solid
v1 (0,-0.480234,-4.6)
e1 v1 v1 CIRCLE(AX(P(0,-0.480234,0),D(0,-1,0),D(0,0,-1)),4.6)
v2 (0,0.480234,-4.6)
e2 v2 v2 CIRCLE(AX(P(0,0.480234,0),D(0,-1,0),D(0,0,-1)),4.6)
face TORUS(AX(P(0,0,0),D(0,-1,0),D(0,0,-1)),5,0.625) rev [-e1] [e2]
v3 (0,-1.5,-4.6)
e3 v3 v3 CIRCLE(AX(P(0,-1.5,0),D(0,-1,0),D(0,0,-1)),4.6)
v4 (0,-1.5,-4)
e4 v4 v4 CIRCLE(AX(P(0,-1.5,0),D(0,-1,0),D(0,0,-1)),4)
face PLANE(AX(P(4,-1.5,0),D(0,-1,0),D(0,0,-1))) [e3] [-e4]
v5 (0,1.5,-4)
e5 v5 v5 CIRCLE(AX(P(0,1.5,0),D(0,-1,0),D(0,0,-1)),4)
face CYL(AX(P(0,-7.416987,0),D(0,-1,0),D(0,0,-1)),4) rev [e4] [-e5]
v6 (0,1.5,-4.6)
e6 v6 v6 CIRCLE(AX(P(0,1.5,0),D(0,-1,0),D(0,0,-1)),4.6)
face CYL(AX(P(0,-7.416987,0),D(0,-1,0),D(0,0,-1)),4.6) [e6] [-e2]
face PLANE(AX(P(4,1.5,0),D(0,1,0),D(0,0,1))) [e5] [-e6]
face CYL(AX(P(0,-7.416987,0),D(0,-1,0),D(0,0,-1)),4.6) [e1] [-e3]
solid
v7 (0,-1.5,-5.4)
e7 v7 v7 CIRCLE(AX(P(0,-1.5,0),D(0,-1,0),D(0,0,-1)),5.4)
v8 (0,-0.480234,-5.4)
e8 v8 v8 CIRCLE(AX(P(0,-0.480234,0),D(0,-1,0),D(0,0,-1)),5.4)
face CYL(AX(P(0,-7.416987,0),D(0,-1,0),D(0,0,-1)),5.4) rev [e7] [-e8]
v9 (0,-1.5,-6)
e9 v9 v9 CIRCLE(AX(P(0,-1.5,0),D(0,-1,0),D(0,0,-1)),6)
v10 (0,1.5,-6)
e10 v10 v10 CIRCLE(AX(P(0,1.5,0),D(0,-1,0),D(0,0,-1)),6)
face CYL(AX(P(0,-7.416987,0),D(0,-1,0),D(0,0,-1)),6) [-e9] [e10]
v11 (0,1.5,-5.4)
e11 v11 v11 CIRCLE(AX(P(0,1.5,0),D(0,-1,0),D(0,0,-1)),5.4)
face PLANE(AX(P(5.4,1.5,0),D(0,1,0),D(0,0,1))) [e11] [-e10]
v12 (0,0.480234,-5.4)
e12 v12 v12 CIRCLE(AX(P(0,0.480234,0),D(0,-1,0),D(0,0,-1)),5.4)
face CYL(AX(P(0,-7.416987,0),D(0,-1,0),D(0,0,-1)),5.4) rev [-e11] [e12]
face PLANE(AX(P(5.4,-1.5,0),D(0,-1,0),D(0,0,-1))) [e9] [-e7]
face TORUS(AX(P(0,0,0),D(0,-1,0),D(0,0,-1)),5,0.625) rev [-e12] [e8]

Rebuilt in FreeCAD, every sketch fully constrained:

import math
import FreeCAD as App
import Part
import Sketcher

V = App.Vector

doc = App.newDocument("Part")
params = doc.addObject("Spreadsheet::Sheet", "Params")
for row, (alias, value) in enumerate([
    ("sketch1_height", "3 mm"),
    ("sketch1_width", "0.6 mm"),
    ("revolution_angle", "360 deg"),
], start=1):
    params.set(f"A{row}", alias)
    params.set(f"B{row}", "=" + value)
    params.setAlias(f"B{row}", alias)

body = doc.addObject("PartDesign::Body", "Body")
body.AllowCompound = True

# Sketch on XY plane
sketch1 = body.newObject("Sketcher::SketchObject", "Sketch")
sketch1.AttachmentSupport = (doc.getObject("XY_Plane"), [""])
sketch1.MapMode = "FlatFace"
sketch1.addGeometry(Part.LineSegment(V(4.6, 1.5, 0), V(4, 1.5, 0)), False)
sketch1.addGeometry(Part.LineSegment(V(4, 1.5, 0), V(4, -1.5, 0)), False)
sketch1.addGeometry(Part.LineSegment(V(4, -1.5, 0), V(4.6, -1.5, 0)), False)
sketch1.addGeometry(Part.LineSegment(V(4.6, -1.5, 0), V(4.6, -0.5, 0)), False)
sketch1.addGeometry(Part.ArcOfCircle(Part.Circle(V(5, 0, 0), V(0, 0, 1), 0.6), math.radians(130), math.radians(230)), False)
sketch1.addGeometry(Part.LineSegment(V(4.6, 0.5, 0), V(4.6, 1.5, 0)), False)
sketch1.addGeometry(Part.LineSegment(V(6, -1.5, 0), V(6, 1.5, 0)), False)
sketch1.addGeometry(Part.LineSegment(V(6, 1.5, 0), V(5.4, 1.5, 0)), False)
sketch1.addGeometry(Part.LineSegment(V(5.4, 1.5, 0), V(5.4, 0.5, 0)), False)
sketch1.addGeometry(Part.ArcOfCircle(Part.Circle(V(5, 0, 0), V(0, 0, 1), 0.6), math.radians(-50), math.radians(50)), False)
sketch1.addGeometry(Part.LineSegment(V(5.4, -0.5, 0), V(5.4, -1.5, 0)), False)
sketch1.addGeometry(Part.LineSegment(V(5.4, -1.5, 0), V(6, -1.5, 0)), False)
sketch1.addConstraint(Sketcher.Constraint("Coincident", 0, 2, 1, 1))
sketch1.addConstraint(Sketcher.Constraint("Coincident", 1, 2, 2, 1))
sketch1.addConstraint(Sketcher.Constraint("Coincident", 2, 2, 3, 1))
sketch1.addConstraint(Sketcher.Constraint("Coincident", 3, 2, 4, 2))
sketch1.addConstraint(Sketcher.Constraint("Coincident", 4, 1, 5, 1))
sketch1.addConstraint(Sketcher.Constraint("Coincident", 5, 2, 0, 1))
sketch1.addConstraint(Sketcher.Constraint("Coincident", 6, 2, 7, 1))
sketch1.addConstraint(Sketcher.Constraint("Coincident", 7, 2, 8, 1))
sketch1.addConstraint(Sketcher.Constraint("Coincident", 8, 2, 9, 2))
sketch1.addConstraint(Sketcher.Constraint("Coincident", 9, 1, 10, 1))
sketch1.addConstraint(Sketcher.Constraint("Coincident", 10, 2, 11, 1))
sketch1.addConstraint(Sketcher.Constraint("Coincident", 11, 2, 6, 1))
sketch1.addConstraint(Sketcher.Constraint("Horizontal", 0))
sketch1.addConstraint(Sketcher.Constraint("Vertical", 1))
sketch1.addConstraint(Sketcher.Constraint("Horizontal", 2))
sketch1.addConstraint(Sketcher.Constraint("Vertical", 3))
sketch1.addConstraint(Sketcher.Constraint("Vertical", 5))
sketch1.addConstraint(Sketcher.Constraint("Vertical", 6))
sketch1.addConstraint(Sketcher.Constraint("Horizontal", 7))
sketch1.addConstraint(Sketcher.Constraint("Vertical", 8))
sketch1.addConstraint(Sketcher.Constraint("Vertical", 10))
sketch1.addConstraint(Sketcher.Constraint("Horizontal", 11))
sketch1.addConstraint(Sketcher.Constraint("Coincident", 9, 3, 4, 3))
sketch1.addConstraint(Sketcher.Constraint("Equal", 4, 9))
sketch1.addConstraint(Sketcher.Constraint("Symmetric", 3, 2, 4, 1, -1))
sketch1.addConstraint(Sketcher.Constraint("Symmetric", 7, 2, 10, 2, -1))
sketch1.addConstraint(Sketcher.Constraint("Horizontal", 5, 2, 6, 2))
sketch1.addConstraint(Sketcher.Constraint("Horizontal", 4, 1, 8, 2))
sketch1.addConstraint(Sketcher.Constraint("Horizontal", 2, 2, 10, 2))
sketch1.addConstraint(Sketcher.Constraint("Equal", 2, 7))
sketch1.addConstraint(Sketcher.Constraint("DistanceY", 1, 2, 1, 1, 3.0))
sketch1.addConstraint(Sketcher.Constraint("DistanceX", 0, 2, 0, 1, 0.6))
sketch1.addConstraint(Sketcher.Constraint("DistanceX", -1, 1, 4, 3, 5.0))
sketch1.addConstraint(Sketcher.Constraint("DistanceX", -1, 1, 0, 2, 4.0))
sketch1.addConstraint(Sketcher.Constraint("Radius", 4, 0.625))
sketch1.setExpression("Constraints[30]", "Params.sketch1_height")
sketch1.setExpression("Constraints[31]", "Params.sketch1_width")
revolution = body.newObject("PartDesign::Revolution", "Revolution")
revolution.Profile = sketch1
revolution.ReferenceAxis = (sketch1, ["V_Axis"])
revolution.setExpression("Angle", "Params.revolution_angle")

doc.recompute()
